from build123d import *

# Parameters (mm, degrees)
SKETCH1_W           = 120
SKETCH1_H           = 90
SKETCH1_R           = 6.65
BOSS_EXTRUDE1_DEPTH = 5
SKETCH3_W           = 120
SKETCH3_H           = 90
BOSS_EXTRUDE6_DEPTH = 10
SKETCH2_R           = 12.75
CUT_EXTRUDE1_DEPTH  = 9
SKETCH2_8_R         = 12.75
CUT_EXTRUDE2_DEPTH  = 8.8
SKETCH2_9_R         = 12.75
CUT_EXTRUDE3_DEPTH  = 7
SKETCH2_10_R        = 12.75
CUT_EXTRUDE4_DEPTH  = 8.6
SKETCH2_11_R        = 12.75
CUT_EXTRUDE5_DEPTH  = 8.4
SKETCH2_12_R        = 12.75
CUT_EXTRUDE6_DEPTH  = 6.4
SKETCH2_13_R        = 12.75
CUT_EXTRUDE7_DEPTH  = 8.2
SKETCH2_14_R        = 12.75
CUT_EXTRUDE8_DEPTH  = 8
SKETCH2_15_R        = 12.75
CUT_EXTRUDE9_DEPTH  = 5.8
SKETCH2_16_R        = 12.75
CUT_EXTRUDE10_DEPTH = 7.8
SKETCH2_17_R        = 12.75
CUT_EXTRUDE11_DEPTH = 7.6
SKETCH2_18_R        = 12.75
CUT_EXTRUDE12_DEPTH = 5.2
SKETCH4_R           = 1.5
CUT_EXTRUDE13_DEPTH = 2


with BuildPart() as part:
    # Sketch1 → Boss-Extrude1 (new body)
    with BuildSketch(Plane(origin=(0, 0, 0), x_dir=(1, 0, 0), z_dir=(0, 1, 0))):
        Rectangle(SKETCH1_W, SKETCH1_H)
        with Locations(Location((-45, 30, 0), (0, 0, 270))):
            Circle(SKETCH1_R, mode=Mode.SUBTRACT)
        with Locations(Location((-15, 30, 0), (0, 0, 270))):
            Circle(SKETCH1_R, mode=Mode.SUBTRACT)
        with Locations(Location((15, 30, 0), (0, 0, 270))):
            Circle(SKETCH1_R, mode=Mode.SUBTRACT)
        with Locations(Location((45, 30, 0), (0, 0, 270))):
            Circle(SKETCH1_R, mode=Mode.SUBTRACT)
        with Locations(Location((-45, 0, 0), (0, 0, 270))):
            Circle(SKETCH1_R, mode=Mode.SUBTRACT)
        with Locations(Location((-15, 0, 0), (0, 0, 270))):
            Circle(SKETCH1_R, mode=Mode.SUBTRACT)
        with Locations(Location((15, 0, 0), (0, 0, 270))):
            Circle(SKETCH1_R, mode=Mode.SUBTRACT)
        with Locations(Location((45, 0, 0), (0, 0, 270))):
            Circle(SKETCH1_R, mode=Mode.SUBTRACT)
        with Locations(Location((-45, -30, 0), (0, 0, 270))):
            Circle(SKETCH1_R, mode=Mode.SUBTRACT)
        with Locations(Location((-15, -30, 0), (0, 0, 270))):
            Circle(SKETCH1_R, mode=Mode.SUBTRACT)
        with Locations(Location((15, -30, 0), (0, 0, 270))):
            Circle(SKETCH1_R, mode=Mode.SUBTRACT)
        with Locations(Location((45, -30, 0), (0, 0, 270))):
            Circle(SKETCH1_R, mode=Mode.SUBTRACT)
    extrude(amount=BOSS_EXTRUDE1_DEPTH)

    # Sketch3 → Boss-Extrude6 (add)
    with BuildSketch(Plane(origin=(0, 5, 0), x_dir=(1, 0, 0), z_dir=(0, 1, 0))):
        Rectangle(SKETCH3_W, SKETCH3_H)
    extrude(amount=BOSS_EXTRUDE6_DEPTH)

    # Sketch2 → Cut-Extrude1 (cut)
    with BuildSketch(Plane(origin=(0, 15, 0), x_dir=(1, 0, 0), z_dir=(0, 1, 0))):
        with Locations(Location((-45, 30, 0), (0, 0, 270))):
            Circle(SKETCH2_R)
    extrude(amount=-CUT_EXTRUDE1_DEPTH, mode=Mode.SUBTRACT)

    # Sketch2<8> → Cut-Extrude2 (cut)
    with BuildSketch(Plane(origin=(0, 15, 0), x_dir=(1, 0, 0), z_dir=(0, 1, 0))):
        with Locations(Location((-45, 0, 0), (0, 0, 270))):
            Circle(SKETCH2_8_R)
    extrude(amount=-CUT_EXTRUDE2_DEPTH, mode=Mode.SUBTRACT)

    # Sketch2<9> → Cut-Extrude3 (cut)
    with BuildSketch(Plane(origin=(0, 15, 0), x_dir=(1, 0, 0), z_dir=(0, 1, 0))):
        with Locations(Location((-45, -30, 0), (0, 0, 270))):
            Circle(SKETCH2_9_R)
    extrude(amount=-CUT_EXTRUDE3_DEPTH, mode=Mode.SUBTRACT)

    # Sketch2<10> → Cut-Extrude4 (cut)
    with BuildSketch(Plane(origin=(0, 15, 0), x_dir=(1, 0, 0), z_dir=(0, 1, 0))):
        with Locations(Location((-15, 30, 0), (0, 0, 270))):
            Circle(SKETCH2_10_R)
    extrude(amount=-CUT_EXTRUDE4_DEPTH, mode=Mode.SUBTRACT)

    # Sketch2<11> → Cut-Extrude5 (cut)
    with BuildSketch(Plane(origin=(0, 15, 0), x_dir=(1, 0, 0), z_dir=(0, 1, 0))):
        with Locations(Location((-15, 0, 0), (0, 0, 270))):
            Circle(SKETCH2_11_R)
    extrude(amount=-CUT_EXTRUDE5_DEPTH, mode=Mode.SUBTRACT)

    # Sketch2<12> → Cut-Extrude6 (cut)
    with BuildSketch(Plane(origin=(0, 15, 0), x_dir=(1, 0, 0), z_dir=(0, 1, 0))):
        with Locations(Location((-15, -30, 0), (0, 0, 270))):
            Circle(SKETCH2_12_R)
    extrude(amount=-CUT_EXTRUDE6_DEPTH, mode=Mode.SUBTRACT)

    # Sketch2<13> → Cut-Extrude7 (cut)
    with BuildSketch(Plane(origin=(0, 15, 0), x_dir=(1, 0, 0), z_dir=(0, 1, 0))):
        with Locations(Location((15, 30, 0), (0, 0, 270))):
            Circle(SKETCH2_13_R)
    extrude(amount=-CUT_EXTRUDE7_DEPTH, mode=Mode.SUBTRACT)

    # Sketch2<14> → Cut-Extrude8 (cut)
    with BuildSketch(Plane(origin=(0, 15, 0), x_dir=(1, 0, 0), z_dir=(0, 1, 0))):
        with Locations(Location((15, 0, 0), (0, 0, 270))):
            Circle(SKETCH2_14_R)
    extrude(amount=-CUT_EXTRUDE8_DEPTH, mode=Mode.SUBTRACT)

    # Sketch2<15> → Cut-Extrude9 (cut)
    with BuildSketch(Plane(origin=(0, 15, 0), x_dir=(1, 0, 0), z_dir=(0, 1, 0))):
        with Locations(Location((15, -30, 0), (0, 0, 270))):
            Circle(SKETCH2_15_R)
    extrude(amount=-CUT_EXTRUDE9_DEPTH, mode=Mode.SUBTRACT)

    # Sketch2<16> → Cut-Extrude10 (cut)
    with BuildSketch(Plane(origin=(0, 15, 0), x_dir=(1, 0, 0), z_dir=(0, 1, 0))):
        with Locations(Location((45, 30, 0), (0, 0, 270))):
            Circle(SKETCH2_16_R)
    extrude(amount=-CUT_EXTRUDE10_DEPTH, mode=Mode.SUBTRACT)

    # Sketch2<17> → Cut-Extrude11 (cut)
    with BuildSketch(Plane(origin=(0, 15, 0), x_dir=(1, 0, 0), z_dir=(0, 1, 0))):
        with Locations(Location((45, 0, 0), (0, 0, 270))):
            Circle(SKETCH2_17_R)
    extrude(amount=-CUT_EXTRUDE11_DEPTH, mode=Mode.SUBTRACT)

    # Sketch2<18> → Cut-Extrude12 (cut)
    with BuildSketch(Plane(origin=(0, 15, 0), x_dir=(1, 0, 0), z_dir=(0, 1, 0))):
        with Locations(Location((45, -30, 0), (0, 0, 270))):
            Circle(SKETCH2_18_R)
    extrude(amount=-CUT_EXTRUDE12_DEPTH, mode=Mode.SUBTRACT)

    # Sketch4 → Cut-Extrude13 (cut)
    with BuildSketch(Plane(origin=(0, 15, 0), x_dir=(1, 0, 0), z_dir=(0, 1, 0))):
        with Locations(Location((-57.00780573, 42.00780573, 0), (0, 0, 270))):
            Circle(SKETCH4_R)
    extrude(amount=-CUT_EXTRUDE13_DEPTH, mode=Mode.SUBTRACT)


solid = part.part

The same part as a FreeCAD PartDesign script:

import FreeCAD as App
import Part
import Sketcher
Q = App.Units.Quantity


def add_polygon(sketch, points):
    """Adds a closed chain of lines whose ends are joined by coincident constraints."""
    first, n = sketch.GeometryCount, len(points)
    for a, b in zip(points, points[1:] + points[:1]):
        sketch.addGeometry(Part.LineSegment(App.Vector(*a, 0), App.Vector(*b, 0)), False)
    for i in range(n):
        sketch.addConstraint(Sketcher.Constraint("Coincident", first + i, 2, first + (i + 1) % n, 1))

doc = App.newDocument("Part")
params = doc.addObject("Spreadsheet::Sheet", "Params")
for row, (alias, value) in enumerate([
    ("sketch1_diameter", "13.3 mm"),
    ("sketch1_width", "120 mm"),
    ("sketch1_height", "90 mm"),
    ("pad1_length", "5 mm"),
    ("sketch2_width", "120 mm"),
    ("sketch2_height", "90 mm"),
    ("pad2_length", "10 mm"),
    ("sketch3_diameter", "25.5 mm"),
    ("pocket1_length", "9 mm"),
    ("sketch4_diameter", "25.5 mm"),
    ("pocket2_length", "8.8 mm"),
    ("sketch5_diameter", "25.5 mm"),
    ("pocket3_length", "7 mm"),
    ("sketch6_diameter", "25.5 mm"),
    ("pocket4_length", "8.6 mm"),
    ("sketch7_diameter", "25.5 mm"),
    ("pocket5_length", "8.4 mm"),
    ("sketch8_diameter", "25.5 mm"),
    ("pocket6_length", "6.4 mm"),
    ("sketch9_diameter", "25.5 mm"),
    ("pocket7_length", "8.2 mm"),
    ("sketch10_diameter", "25.5 mm"),
    ("pocket8_length", "8 mm"),
    ("sketch11_diameter", "25.5 mm"),
    ("pocket9_length", "5.8 mm"),
    ("sketch12_diameter", "25.5 mm"),
    ("pocket10_length", "7.8 mm"),
    ("sketch13_diameter", "25.5 mm"),
    ("pocket11_length", "7.6 mm"),
    ("sketch14_diameter", "25.5 mm"),
    ("pocket12_length", "5.2 mm"),
    ("sketch15_diameter", "3 mm"),
    ("pocket13_length", "2 mm"),
], start=1):
    params.set(f"A{row}", alias)
    params.set(f"B{row}", "=" + value)
    params.setAlias(f"B{row}", alias)

body = doc.addObject("PartDesign::Body", "Body")

sketch1 = body.newObject("Sketcher::SketchObject", "Sketch")
sketch1.AttachmentSupport = (doc.getObject("XZ_Plane"), [""])
sketch1.MapMode = "FlatFace"
add_polygon(sketch1, [(-60, -45), (-60, 45), (60, 45), (60, -45)])
sketch1.addGeometry(Part.Circle(App.Vector(-45, 30, 0), App.Vector(0, 0, 1), 7), False)
sketch1.addGeometry(Part.Circle(App.Vector(-15, 30, 0), App.Vector(0, 0, 1), 7), False)
sketch1.addGeometry(Part.Circle(App.Vector(15, 30, 0), App.Vector(0, 0, 1), 7), False)
sketch1.addGeometry(Part.Circle(App.Vector(45, 30, 0), App.Vector(0, 0, 1), 7), False)
sketch1.addGeometry(Part.Circle(App.Vector(-45, 0, 0), App.Vector(0, 0, 1), 7), False)
sketch1.addGeometry(Part.Circle(App.Vector(-15, 0, 0), App.Vector(0, 0, 1), 7), False)
sketch1.addGeometry(Part.Circle(App.Vector(-45, -30, 0), App.Vector(0, 0, 1), 7), False)
sketch1.addGeometry(Part.Circle(App.Vector(-15, -30, 0), App.Vector(0, 0, 1), 7), False)
sketch1.addGeometry(Part.Circle(App.Vector(15, 0, 0), App.Vector(0, 0, 1), 7), False)
sketch1.addGeometry(Part.Circle(App.Vector(45, 0, 0), App.Vector(0, 0, 1), 7), False)
sketch1.addGeometry(Part.Circle(App.Vector(15, -30, 0), App.Vector(0, 0, 1), 7), False)
sketch1.addGeometry(Part.Circle(App.Vector(45, -30, 0), App.Vector(0, 0, 1), 7), False)
sketch1.addConstraint(Sketcher.Constraint("Vertical", 0))
sketch1.addConstraint(Sketcher.Constraint("Horizontal", 1))
sketch1.addConstraint(Sketcher.Constraint("Vertical", 2))
sketch1.addConstraint(Sketcher.Constraint("Horizontal", 3))
sketch1.addConstraint(Sketcher.Constraint("Equal", 4, 5))
sketch1.addConstraint(Sketcher.Constraint("Equal", 5, 6))
sketch1.addConstraint(Sketcher.Constraint("Equal", 6, 7))
sketch1.addConstraint(Sketcher.Constraint("Equal", 7, 8))
sketch1.addConstraint(Sketcher.Constraint("Equal", 8, 9))
sketch1.addConstraint(Sketcher.Constraint("Equal", 9, 10))
sketch1.addConstraint(Sketcher.Constraint("Equal", 10, 11))
sketch1.addConstraint(Sketcher.Constraint("Equal", 11, 12))
sketch1.addConstraint(Sketcher.Constraint("Equal", 12, 13))
sketch1.addConstraint(Sketcher.Constraint("Equal", 13, 14))
sketch1.addConstraint(Sketcher.Constraint("Equal", 14, 15))
sketch1.addConstraint(Sketcher.Constraint("Symmetric", 7, 3, 10, 3, -1, 1))
sketch1.addConstraint(Sketcher.Constraint("Symmetric", 6, 3, 11, 3, -1, 1))
sketch1.addConstraint(Sketcher.Constraint("Symmetric", 9, 3, 12, 3, -1, 1))
sketch1.addConstraint(Sketcher.Constraint("Symmetric", 8, 3, 13, 3, -1, 1))
sketch1.addConstraint(Sketcher.Constraint("Symmetric", 5, 3, 14, 3, -1, 1))
sketch1.addConstraint(Sketcher.Constraint("Symmetric", 4, 3, 15, 3, -1, 1))
sketch1.addConstraint(Sketcher.Constraint("Symmetric", 0, 2, 2, 2, -1, 1))
sketch1.addConstraint(Sketcher.Constraint("Symmetric", 5, 3, 6, 3, -2))
sketch1.addConstraint(Sketcher.Constraint("Symmetric", 4, 3, 7, 3, -2))
sketch1.addConstraint(Sketcher.Constraint("PointOnObject", 8, 3, -1))
sketch1.addConstraint(Sketcher.Constraint("PointOnObject", 9, 3, -1))
sketch1.addConstraint(Sketcher.Constraint("Horizontal", 4, 3, 5, 3))
sketch1.addConstraint(Sketcher.Constraint("Vertical", 4, 3, 8, 3))
sketch1.addConstraint(Sketcher.Constraint("Vertical", 5, 3, 9, 3))
sketch1.addConstraint(Sketcher.Constraint("Diameter", 4, Q("13.3 mm")))
sketch1.addConstraint(Sketcher.Constraint("DistanceX", 1, 1, 1, 2, Q("120 mm")))
sketch1.addConstraint(Sketcher.Constraint("DistanceY", 0, 1, 0, 2, Q("90 mm")))
sketch1.addConstraint(Sketcher.Constraint("DistanceX", 4, 3, -1, 1, Q("45 mm")))
sketch1.addConstraint(Sketcher.Constraint("DistanceY", -1, 1, 4, 3, Q("30 mm")))
sketch1.addConstraint(Sketcher.Constraint("DistanceX", 5, 3, -1, 1, Q("15 mm")))
sketch1.setExpression("Constraints[33]", "Params.sketch1_diameter")
sketch1.setExpression("Constraints[34]", "Params.sketch1_width")
sketch1.setExpression("Constraints[35]", "Params.sketch1_height")
pad1 = body.newObject("PartDesign::Pad", "Pad")
pad1.Profile = sketch1
pad1.setExpression("Length", "Params.pad1_length")
pad1.Reversed = True

sketch2 = body.newObject("Sketcher::SketchObject", "Sketch001")
sketch2.AttachmentSupport = (doc.getObject("XZ_Plane"), [""])
sketch2.MapMode = "FlatFace"
sketch2.AttachmentOffset = App.Placement(App.Vector(0, 0, -5), App.Rotation())
add_polygon(sketch2, [(-60, -45), (-60, 45), (60, 45), (60, -45)])
sketch2.addConstraint(Sketcher.Constraint("Vertical", 0))
sketch2.addConstraint(Sketcher.Constraint("Horizontal", 1))
sketch2.addConstraint(Sketcher.Constraint("Vertical", 2))
sketch2.addConstraint(Sketcher.Constraint("Horizontal", 3))
sketch2.addConstraint(Sketcher.Constraint("Symmetric", 0, 2, 2, 2, -1, 1))
sketch2.addConstraint(Sketcher.Constraint("DistanceX", 1, 1, 1, 2, Q("120 mm")))
sketch2.addConstraint(Sketcher.Constraint("DistanceY", 0, 1, 0, 2, Q("90 mm")))
sketch2.setExpression("Constraints[9]", "Params.sketch2_width")
sketch2.setExpression("Constraints[10]", "Params.sketch2_height")
pad2 = body.newObject("PartDesign::Pad", "Pad001")
pad2.Profile = sketch2
pad2.setExpression("Length", "Params.pad2_length")
pad2.Reversed = True

sketch3 = body.newObject("Sketcher::SketchObject", "Sketch002")
sketch3.AttachmentSupport = (doc.getObject("XZ_Plane"), [""])
sketch3.MapMode = "FlatFace"
sketch3.AttachmentOffset = App.Placement(App.Vector(0, 0, -15), App.Rotation())
sketch3.addGeometry(Part.Circle(App.Vector(-45, -30, 0), App.Vector(0, 0, 1), 13), False)
sketch3.addConstraint(Sketcher.Constraint("Diameter", 0, Q("25.5 mm")))
sketch3.addConstraint(Sketcher.Constraint("DistanceX", 0, 3, -1, 1, Q("45 mm")))
sketch3.addConstraint(Sketcher.Constraint("DistanceY", 0, 3, -1, 1, Q("30 mm")))
sketch3.setExpression("Constraints[0]", "Params.sketch3_diameter")
pocket1 = body.newObject("PartDesign::Pocket", "Pocket")
pocket1.Profile = sketch3
pocket1.setExpression("Length", "Params.pocket1_length")
pocket1.Reversed = True

sketch4 = body.newObject("Sketcher::SketchObject", "Sketch003")
sketch4.AttachmentSupport = (doc.getObject("XZ_Plane"), [""])
sketch4.MapMode = "FlatFace"
sketch4.AttachmentOffset = App.Placement(App.Vector(0, 0, -15), App.Rotation())
sketch4.addGeometry(Part.Circle(App.Vector(-45, 0, 0), App.Vector(0, 0, 1), 13), False)
sketch4.addConstraint(Sketcher.Constraint("PointOnObject", 0, 3, -1))
sketch4.addConstraint(Sketcher.Constraint("Diameter", 0, Q("25.5 mm")))
sketch4.addConstraint(Sketcher.Constraint("DistanceX", 0, 3, -1, 1, Q("45 mm")))
sketch4.setExpression("Constraints[1]", "Params.sketch4_diameter")
pocket2 = body.newObject("PartDesign::Pocket", "Pocket001")
pocket2.Profile = sketch4
pocket2.setExpression("Length", "Params.pocket2_length")
pocket2.Reversed = True

sketch5 = body.newObject("Sketcher::SketchObject", "Sketch004")
sketch5.AttachmentSupport = (doc.getObject("XZ_Plane"), [""])
sketch5.MapMode = "FlatFace"
sketch5.AttachmentOffset = App.Placement(App.Vector(0, 0, -15), App.Rotation())
sketch5.addGeometry(Part.Circle(App.Vector(-45, 30, 0), App.Vector(0, 0, 1), 13), False)
sketch5.addConstraint(Sketcher.Constraint("Diameter", 0, Q("25.5 mm")))
sketch5.addConstraint(Sketcher.Constraint("DistanceX", 0, 3, -1, 1, Q("45 mm")))
sketch5.addConstraint(Sketcher.Constraint("DistanceY", -1, 1, 0, 3, Q("30 mm")))
sketch5.setExpression("Constraints[0]", "Params.sketch5_diameter")
pocket3 = body.newObject("PartDesign::Pocket", "Pocket002")
pocket3.Profile = sketch5
pocket3.setExpression("Length", "Params.pocket3_length")
pocket3.Reversed = True

sketch6 = body.newObject("Sketcher::SketchObject", "Sketch005")
sketch6.AttachmentSupport = (doc.getObject("XZ_Plane"), [""])
sketch6.MapMode = "FlatFace"
sketch6.AttachmentOffset = App.Placement(App.Vector(0, 0, -15), App.Rotation())
sketch6.addGeometry(Part.Circle(App.Vector(-15, -30, 0), App.Vector(0, 0, 1), 13), False)
sketch6.addConstraint(Sketcher.Constraint("Diameter", 0, Q("25.5 mm")))
sketch6.addConstraint(Sketcher.Constraint("DistanceX", 0, 3, -1, 1, Q("15 mm")))
sketch6.addConstraint(Sketcher.Constraint("DistanceY", 0, 3, -1, 1, Q("30 mm")))
sketch6.setExpression("Constraints[0]", "Params.sketch6_diameter")
pocket4 = body.newObject("PartDesign::Pocket", "Pocket003")
pocket4.Profile = sketch6
pocket4.setExpression("Length", "Params.pocket4_length")
pocket4.Reversed = True

sketch7 = body.newObject("Sketcher::SketchObject", "Sketch006")
sketch7.AttachmentSupport = (doc.getObject("XZ_Plane"), [""])
sketch7.MapMode = "FlatFace"
sketch7.AttachmentOffset = App.Placement(App.Vector(0, 0, -15), App.Rotation())
sketch7.addGeometry(Part.Circle(App.Vector(-15, 0, 0), App.Vector(0, 0, 1), 13), False)
sketch7.addConstraint(Sketcher.Constraint("PointOnObject", 0, 3, -1))
sketch7.addConstraint(Sketcher.Constraint("Diameter", 0, Q("25.5 mm")))
sketch7.addConstraint(Sketcher.Constraint("DistanceX", 0, 3, -1, 1, Q("15 mm")))
sketch7.setExpression("Constraints[1]", "Params.sketch7_diameter")
pocket5 = body.newObject("PartDesign::Pocket", "Pocket004")
pocket5.Profile = sketch7
pocket5.setExpression("Length", "Params.pocket5_length")
pocket5.Reversed = True

sketch8 = body.newObject("Sketcher::SketchObject", "Sketch007")
sketch8.AttachmentSupport = (doc.getObject("XZ_Plane"), [""])
sketch8.MapMode = "FlatFace"
sketch8.AttachmentOffset = App.Placement(App.Vector(0, 0, -15), App.Rotation())
sketch8.addGeometry(Part.Circle(App.Vector(-15, 30, 0), App.Vector(0, 0, 1), 13), False)
sketch8.addConstraint(Sketcher.Constraint("Diameter", 0, Q("25.5 mm")))
sketch8.addConstraint(Sketcher.Constraint("DistanceX", 0, 3, -1, 1, Q("15 mm")))
sketch8.addConstraint(Sketcher.Constraint("DistanceY", -1, 1, 0, 3, Q("30 mm")))
sketch8.setExpression("Constraints[0]", "Params.sketch8_diameter")
pocket6 = body.newObject("PartDesign::Pocket", "Pocket005")
pocket6.Profile = sketch8
pocket6.setExpression("Length", "Params.pocket6_length")
pocket6.Reversed = True

sketch9 = body.newObject("Sketcher::SketchObject", "Sketch008")
sketch9.AttachmentSupport = (doc.getObject("XZ_Plane"), [""])
sketch9.MapMode = "FlatFace"
sketch9.AttachmentOffset = App.Placement(App.Vector(0, 0, -15), App.Rotation())
sketch9.addGeometry(Part.Circle(App.Vector(15, -30, 0), App.Vector(0, 0, 1), 13), False)
sketch9.addConstraint(Sketcher.Constraint("Diameter", 0, Q("25.5 mm")))
sketch9.addConstraint(Sketcher.Constraint("DistanceX", -1, 1, 0, 3, Q("15 mm")))
sketch9.addConstraint(Sketcher.Constraint("DistanceY", 0, 3, -1, 1, Q("30 mm")))
sketch9.setExpression("Constraints[0]", "Params.sketch9_diameter")
pocket7 = body.newObject("PartDesign::Pocket", "Pocket006")
pocket7.Profile = sketch9
pocket7.setExpression("Length", "Params.pocket7_length")
pocket7.Reversed = True

sketch10 = body.newObject("Sketcher::SketchObject", "Sketch009")
sketch10.AttachmentSupport = (doc.getObject("XZ_Plane"), [""])
sketch10.MapMode = "FlatFace"
sketch10.AttachmentOffset = App.Placement(App.Vector(0, 0, -15), App.Rotation())
sketch10.addGeometry(Part.Circle(App.Vector(15, 0, 0), App.Vector(0, 0, 1), 13), False)
sketch10.addConstraint(Sketcher.Constraint("PointOnObject", 0, 3, -1))
sketch10.addConstraint(Sketcher.Constraint("Diameter", 0, Q("25.5 mm")))
sketch10.addConstraint(Sketcher.Constraint("DistanceX", -1, 1, 0, 3, Q("15 mm")))
sketch10.setExpression("Constraints[1]", "Params.sketch10_diameter")
pocket8 = body.newObject("PartDesign::Pocket", "Pocket007")
pocket8.Profile = sketch10
pocket8.setExpression("Length", "Params.pocket8_length")
pocket8.Reversed = True

sketch11 = body.newObject("Sketcher::SketchObject", "Sketch010")
sketch11.AttachmentSupport = (doc.getObject("XZ_Plane"), [""])
sketch11.MapMode = "FlatFace"
sketch11.AttachmentOffset = App.Placement(App.Vector(0, 0, -15), App.Rotation())
sketch11.addGeometry(Part.Circle(App.Vector(15, 30, 0), App.Vector(0, 0, 1), 13), False)
sketch11.addConstraint(Sketcher.Constraint("Diameter", 0, Q("25.5 mm")))
sketch11.addConstraint(Sketcher.Constraint("DistanceX", -1, 1, 0, 3, Q("15 mm")))
sketch11.addConstraint(Sketcher.Constraint("DistanceY", -1, 1, 0, 3, Q("30 mm")))
sketch11.setExpression("Constraints[0]", "Params.sketch11_diameter")
pocket9 = body.newObject("PartDesign::Pocket", "Pocket008")
pocket9.Profile = sketch11
pocket9.setExpression("Length", "Params.pocket9_length")
pocket9.Reversed = True

sketch12 = body.newObject("Sketcher::SketchObject", "Sketch011")
sketch12.AttachmentSupport = (doc.getObject("XZ_Plane"), [""])
sketch12.MapMode = "FlatFace"
sketch12.AttachmentOffset = App.Placement(App.Vector(0, 0, -15), App.Rotation())
sketch12.addGeometry(Part.Circle(App.Vector(45, -30, 0), App.Vector(0, 0, 1), 13), False)
sketch12.addConstraint(Sketcher.Constraint("Diameter", 0, Q("25.5 mm")))
sketch12.addConstraint(Sketcher.Constraint("DistanceX", -1, 1, 0, 3, Q("45 mm")))
sketch12.addConstraint(Sketcher.Constraint("DistanceY", 0, 3, -1, 1, Q("30 mm")))
sketch12.setExpression("Constraints[0]", "Params.sketch12_diameter")
pocket10 = body.newObject("PartDesign::Pocket", "Pocket009")
pocket10.Profile = sketch12
pocket10.setExpression("Length", "Params.pocket10_length")
pocket10.Reversed = True

sketch13 = body.newObject("Sketcher::SketchObject", "Sketch012")
sketch13.AttachmentSupport = (doc.getObject("XZ_Plane"), [""])
sketch13.MapMode = "FlatFace"
sketch13.AttachmentOffset = App.Placement(App.Vector(0, 0, -15), App.Rotation())
sketch13.addGeometry(Part.Circle(App.Vector(45, 0, 0), App.Vector(0, 0, 1), 13), False)
sketch13.addConstraint(Sketcher.Constraint("PointOnObject", 0, 3, -1))
sketch13.addConstraint(Sketcher.Constraint("Diameter", 0, Q("25.5 mm")))
sketch13.addConstraint(Sketcher.Constraint("DistanceX", -1, 1, 0, 3, Q("45 mm")))
sketch13.setExpression("Constraints[1]", "Params.sketch13_diameter")
pocket11 = body.newObject("PartDesign::Pocket", "Pocket010")
pocket11.Profile = sketch13
pocket11.setExpression("Length", "Params.pocket11_length")
pocket11.Reversed = True

sketch14 = body.newObject("Sketcher::SketchObject", "Sketch013")
sketch14.AttachmentSupport = (doc.getObject("XZ_Plane"), [""])
sketch14.MapMode = "FlatFace"
sketch14.AttachmentOffset = App.Placement(App.Vector(0, 0, -15), App.Rotation())
sketch14.addGeometry(Part.Circle(App.Vector(45, 30, 0), App.Vector(0, 0, 1), 13), False)
sketch14.addConstraint(Sketcher.Constraint("Diameter", 0, Q("25.5 mm")))
sketch14.addConstraint(Sketcher.Constraint("DistanceX", -1, 1, 0, 3, Q("45 mm")))
sketch14.addConstraint(Sketcher.Constraint("DistanceY", -1, 1, 0, 3, Q("30 mm")))
sketch14.setExpression("Constraints[0]", "Params.sketch14_diameter")
pocket12 = body.newObject("PartDesign::Pocket", "Pocket011")
pocket12.Profile = sketch14
pocket12.setExpression("Length", "Params.pocket12_length")
pocket12.Reversed = True

sketch15 = body.newObject("Sketcher::SketchObject", "Sketch014")
sketch15.AttachmentSupport = (doc.getObject("XZ_Plane"), [""])
sketch15.MapMode = "FlatFace"
sketch15.AttachmentOffset = App.Placement(App.Vector(0, 0, -15), App.Rotation())
sketch15.addGeometry(Part.Circle(App.Vector(-57, -42, 0), App.Vector(0, 0, 1), 1.5), False)
sketch15.addConstraint(Sketcher.Constraint("Diameter", 0, Q("3 mm")))
sketch15.addConstraint(Sketcher.Constraint("DistanceX", 0, 3, -1, 1, Q("57.007806 mm")))
sketch15.addConstraint(Sketcher.Constraint("DistanceY", 0, 3, -1, 1, Q("42.007806 mm")))
sketch15.setExpression("Constraints[0]", "Params.sketch15_diameter")
pocket13 = body.newObject("PartDesign::Pocket", "Pocket012")
pocket13.Profile = sketch15
pocket13.setExpression("Length", "Params.pocket13_length")
pocket13.Reversed = True

doc.recompute()
